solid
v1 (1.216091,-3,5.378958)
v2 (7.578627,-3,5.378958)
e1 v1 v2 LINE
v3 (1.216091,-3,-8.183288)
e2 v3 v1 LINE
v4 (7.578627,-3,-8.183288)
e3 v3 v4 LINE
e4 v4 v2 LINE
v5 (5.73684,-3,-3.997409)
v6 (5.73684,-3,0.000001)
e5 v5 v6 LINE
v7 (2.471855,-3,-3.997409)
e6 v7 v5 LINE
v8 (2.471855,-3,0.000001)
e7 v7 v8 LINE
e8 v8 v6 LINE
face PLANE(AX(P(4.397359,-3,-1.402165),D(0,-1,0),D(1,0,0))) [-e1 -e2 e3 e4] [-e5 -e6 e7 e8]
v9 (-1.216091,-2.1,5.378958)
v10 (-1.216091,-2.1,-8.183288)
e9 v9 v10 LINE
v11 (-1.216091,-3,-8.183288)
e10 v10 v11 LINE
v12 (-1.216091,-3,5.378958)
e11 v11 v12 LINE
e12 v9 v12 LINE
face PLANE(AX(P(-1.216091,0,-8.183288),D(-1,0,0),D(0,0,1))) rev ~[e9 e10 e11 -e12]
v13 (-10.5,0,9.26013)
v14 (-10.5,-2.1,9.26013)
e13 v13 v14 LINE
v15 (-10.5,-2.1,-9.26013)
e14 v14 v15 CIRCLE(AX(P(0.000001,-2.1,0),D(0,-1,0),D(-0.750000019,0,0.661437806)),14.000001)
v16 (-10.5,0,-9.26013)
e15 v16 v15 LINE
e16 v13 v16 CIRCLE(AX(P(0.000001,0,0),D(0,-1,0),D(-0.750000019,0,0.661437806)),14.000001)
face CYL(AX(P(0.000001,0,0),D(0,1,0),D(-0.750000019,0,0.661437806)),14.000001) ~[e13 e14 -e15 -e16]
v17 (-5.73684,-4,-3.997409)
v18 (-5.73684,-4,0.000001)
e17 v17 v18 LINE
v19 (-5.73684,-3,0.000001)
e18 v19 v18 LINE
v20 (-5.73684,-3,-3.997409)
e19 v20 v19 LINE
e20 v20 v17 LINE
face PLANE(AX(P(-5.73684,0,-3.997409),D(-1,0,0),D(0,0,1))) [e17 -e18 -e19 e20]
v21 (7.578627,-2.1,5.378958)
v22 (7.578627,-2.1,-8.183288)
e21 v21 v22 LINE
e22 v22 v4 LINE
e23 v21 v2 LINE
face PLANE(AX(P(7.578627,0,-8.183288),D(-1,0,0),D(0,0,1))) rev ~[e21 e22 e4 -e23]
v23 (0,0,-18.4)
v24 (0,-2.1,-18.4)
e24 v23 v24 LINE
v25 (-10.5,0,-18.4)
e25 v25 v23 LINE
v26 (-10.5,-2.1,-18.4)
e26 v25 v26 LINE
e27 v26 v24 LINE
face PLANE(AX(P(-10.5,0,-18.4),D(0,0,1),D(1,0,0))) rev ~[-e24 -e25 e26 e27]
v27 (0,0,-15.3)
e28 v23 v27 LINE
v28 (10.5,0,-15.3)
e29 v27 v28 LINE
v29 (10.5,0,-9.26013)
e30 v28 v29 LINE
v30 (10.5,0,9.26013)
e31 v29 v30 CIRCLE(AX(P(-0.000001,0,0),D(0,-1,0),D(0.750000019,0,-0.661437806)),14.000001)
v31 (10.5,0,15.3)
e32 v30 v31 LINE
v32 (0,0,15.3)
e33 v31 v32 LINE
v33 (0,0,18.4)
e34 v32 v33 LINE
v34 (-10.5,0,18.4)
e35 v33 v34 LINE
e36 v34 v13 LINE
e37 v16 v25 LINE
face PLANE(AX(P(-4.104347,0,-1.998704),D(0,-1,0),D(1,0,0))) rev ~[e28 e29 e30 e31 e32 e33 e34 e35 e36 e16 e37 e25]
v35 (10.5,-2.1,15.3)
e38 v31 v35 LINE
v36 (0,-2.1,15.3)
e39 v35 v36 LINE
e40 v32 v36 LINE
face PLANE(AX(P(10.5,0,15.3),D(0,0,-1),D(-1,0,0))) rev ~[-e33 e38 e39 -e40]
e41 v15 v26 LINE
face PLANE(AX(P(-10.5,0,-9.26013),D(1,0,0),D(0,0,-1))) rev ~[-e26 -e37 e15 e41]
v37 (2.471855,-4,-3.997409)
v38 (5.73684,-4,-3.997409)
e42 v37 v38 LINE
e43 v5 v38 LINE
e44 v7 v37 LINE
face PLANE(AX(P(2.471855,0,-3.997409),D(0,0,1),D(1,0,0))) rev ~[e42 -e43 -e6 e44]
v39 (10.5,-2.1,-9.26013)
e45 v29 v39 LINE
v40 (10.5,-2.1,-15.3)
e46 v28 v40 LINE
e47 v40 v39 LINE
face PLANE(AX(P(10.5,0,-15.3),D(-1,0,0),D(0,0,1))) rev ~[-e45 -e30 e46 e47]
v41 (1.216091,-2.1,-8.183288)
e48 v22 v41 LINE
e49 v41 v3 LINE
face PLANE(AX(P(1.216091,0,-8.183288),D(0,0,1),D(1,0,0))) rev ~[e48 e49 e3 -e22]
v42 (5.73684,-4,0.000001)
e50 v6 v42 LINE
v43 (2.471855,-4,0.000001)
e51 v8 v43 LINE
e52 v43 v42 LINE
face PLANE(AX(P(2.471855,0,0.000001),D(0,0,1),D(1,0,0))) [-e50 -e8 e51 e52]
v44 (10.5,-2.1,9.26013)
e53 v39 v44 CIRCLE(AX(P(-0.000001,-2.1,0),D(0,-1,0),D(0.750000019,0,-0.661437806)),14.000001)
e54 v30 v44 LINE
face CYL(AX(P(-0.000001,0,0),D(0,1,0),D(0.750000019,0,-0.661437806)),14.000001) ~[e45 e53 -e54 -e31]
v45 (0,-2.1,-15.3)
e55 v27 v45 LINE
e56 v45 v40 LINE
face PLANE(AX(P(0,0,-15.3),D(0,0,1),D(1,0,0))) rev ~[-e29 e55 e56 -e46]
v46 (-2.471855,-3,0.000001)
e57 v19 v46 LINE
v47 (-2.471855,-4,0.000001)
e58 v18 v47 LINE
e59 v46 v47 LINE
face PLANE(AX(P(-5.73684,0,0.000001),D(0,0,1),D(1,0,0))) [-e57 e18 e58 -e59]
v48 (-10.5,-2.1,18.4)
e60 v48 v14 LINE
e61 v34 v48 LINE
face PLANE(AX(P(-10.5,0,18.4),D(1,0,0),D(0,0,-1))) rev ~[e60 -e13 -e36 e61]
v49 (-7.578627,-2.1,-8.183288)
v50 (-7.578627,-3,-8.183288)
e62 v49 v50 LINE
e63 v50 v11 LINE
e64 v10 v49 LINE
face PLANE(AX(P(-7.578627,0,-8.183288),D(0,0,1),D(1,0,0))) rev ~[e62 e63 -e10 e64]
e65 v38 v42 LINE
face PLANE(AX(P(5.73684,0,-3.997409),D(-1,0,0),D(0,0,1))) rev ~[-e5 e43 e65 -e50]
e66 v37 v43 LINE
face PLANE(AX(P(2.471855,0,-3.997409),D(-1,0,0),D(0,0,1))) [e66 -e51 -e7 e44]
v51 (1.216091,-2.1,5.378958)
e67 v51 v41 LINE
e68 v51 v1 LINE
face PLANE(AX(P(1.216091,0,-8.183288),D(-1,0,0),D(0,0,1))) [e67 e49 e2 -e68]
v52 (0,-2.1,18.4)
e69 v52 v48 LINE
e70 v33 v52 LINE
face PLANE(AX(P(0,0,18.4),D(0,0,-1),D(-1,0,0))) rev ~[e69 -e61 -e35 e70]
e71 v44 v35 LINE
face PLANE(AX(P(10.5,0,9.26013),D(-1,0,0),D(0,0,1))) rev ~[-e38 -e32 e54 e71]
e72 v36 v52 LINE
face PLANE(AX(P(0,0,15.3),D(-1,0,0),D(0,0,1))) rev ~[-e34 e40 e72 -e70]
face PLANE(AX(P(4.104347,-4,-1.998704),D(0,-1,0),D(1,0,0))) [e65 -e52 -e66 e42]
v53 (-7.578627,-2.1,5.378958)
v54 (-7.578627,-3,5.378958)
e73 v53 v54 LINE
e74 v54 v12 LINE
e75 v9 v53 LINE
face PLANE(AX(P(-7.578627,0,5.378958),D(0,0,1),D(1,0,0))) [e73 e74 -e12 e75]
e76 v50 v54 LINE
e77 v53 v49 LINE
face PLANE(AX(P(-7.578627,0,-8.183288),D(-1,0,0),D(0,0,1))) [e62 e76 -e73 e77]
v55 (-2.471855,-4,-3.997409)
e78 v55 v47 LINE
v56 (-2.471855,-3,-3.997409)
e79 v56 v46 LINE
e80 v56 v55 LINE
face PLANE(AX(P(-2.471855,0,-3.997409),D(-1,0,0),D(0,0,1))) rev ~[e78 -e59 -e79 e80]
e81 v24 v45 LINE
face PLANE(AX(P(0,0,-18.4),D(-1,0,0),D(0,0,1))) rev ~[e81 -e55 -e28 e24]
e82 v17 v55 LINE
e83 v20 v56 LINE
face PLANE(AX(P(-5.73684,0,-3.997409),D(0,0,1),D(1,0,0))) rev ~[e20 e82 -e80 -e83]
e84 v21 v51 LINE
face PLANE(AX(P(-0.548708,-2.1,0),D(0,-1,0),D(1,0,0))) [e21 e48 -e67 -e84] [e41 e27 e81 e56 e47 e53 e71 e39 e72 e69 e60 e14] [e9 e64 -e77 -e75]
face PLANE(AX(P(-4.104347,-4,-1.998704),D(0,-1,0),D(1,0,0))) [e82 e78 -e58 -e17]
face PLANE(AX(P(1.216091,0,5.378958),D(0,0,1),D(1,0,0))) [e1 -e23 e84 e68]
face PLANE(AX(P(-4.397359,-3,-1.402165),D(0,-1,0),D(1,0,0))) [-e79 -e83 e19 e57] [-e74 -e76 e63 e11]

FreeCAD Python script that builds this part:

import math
import FreeCAD as App
import Part
import Sketcher
from FreeCAD import Vector

doc = App.newDocument("Part")
body = doc.addObject("PartDesign::Body", "Body")

# Sketch on XZ plane
sketch1 = body.newObject("Sketcher::SketchObject", "Sketch")
sketch1.AttachmentSupport = (doc.getObject("XZ_Plane"), [""])
sketch1.MapMode = "FlatFace"
sketch1.addGeometry(Part.LineSegment(Vector(-10.5, 18.4, 0), Vector(-10.5, 9.3, 0)), False)
sketch1.addGeometry(Part.ArcOfCircle(Part.Circle(Vector(0, 0, 0), Vector(0, 0, 1), 14), math.radians(139), math.radians(221)), False)
sketch1.addGeometry(Part.LineSegment(Vector(-10.5, -9.3, 0), Vector(-10.5, -18.4, 0)), False)
sketch1.addGeometry(Part.LineSegment(Vector(-10.5, -18.4, 0), Vector(0, -18.4, 0)), False)
sketch1.addGeometry(Part.LineSegment(Vector(0, -18.4, 0), Vector(0, -15.3, 0)), False)
sketch1.addGeometry(Part.LineSegment(Vector(0, -15.3, 0), Vector(10.5, -15.3, 0)), False)
sketch1.addGeometry(Part.LineSegment(Vector(10.5, -15.3, 0), Vector(10.5, -9.3, 0)), False)
sketch1.addGeometry(Part.ArcOfCircle(Part.Circle(Vector(0, 0, 0), Vector(0, 0, 1), 14), math.radians(-41), math.radians(41)), False)
sketch1.addGeometry(Part.LineSegment(Vector(10.5, 9.3, 0), Vector(10.5, 15.3, 0)), False)
sketch1.addGeometry(Part.LineSegment(Vector(10.5, 15.3, 0), Vector(0, 15.3, 0)), False)
sketch1.addGeometry(Part.LineSegment(Vector(0, 15.3, 0), Vector(0, 18.4, 0)), False)
sketch1.addGeometry(Part.LineSegment(Vector(0, 18.4, 0), Vector(-10.5, 18.4, 0)), False)
sketch1.addConstraint(Sketcher.Constraint("Coincident", 0, 2, 1, 1))
sketch1.addConstraint(Sketcher.Constraint("Coincident", 1, 2, 2, 1))
sketch1.addConstraint(Sketcher.Constraint("Coincident", 2, 2, 3, 1))
sketch1.addConstraint(Sketcher.Constraint("Coincident", 3, 2, 4, 1))
sketch1.addConstraint(Sketcher.Constraint("Coincident", 4, 2, 5, 1))
sketch1.addConstraint(Sketcher.Constraint("Coincident", 5, 2, 6, 1))
sketch1.addConstraint(Sketcher.Constraint("Coincident", 6, 2, 7, 1))
sketch1.addConstraint(Sketcher.Constraint("Coincident", 7, 2, 8, 1))
sketch1.addConstraint(Sketcher.Constraint("Coincident", 8, 2, 9, 1))
sketch1.addConstraint(Sketcher.Constraint("Coincident", 9, 2, 10, 1))
sketch1.addConstraint(Sketcher.Constraint("Coincident", 10, 2, 11, 1))
sketch1.addConstraint(Sketcher.Constraint("Coincident", 11, 2, 0, 1))
sketch1.addConstraint(Sketcher.Constraint("Vertical", 0))
sketch1.addConstraint(Sketcher.Constraint("Vertical", 2))
sketch1.addConstraint(Sketcher.Constraint("Horizontal", 3))
sketch1.addConstraint(Sketcher.Constraint("Vertical", 4))
sketch1.addConstraint(Sketcher.Constraint("Horizontal", 5))
sketch1.addConstraint(Sketcher.Constraint("Vertical", 6))
sketch1.addConstraint(Sketcher.Constraint("Vertical", 8))
sketch1.addConstraint(Sketcher.Constraint("Horizontal", 9))
sketch1.addConstraint(Sketcher.Constraint("Vertical", 10))
sketch1.addConstraint(Sketcher.Constraint("Horizontal", 11))
sketch1.addConstraint(Sketcher.Constraint("Coincident", 1, 3, -1, 1))
sketch1.addConstraint(Sketcher.Constraint("Coincident", 7, 3, -1, 1))
sketch1.addConstraint(Sketcher.Constraint("Equal", 1, 7))
sketch1.addConstraint(Sketcher.Constraint("Symmetric", 4, 2, 9, 2, -1, 1))
sketch1.addConstraint(Sketcher.Constraint("Symmetric", 3, 2, 10, 2, -1))
sketch1.addConstraint(Sketcher.Constraint("Horizontal", 1, 2, 6, 2))
sketch1.addConstraint(Sketcher.Constraint("Horizontal", 0, 2, 7, 2))
sketch1.addConstraint(Sketcher.Constraint("Vertical", 0, 2, 1, 2))
sketch1.addConstraint(Sketcher.Constraint("Radius", 1, 14.000001))
sketch1.addConstraint(Sketcher.Constraint("DistanceX", 3, 1, 3, 2, 10.5))
sketch1.addConstraint(Sketcher.Constraint("DistanceY", 4, 1, 4, 2, 3.1))
sketch1.addConstraint(Sketcher.Constraint("DistanceY", 2, 2, -1, 1, 18.4))
pad1 = body.newObject("PartDesign::Pad", "Pad")
pad1.Profile = sketch1
pad1.Length = 2.1

# Sketch on XZ plane
sketch2 = body.newObject("Sketcher::SketchObject", "Sketch001")
sketch2.AttachmentSupport = (doc.getObject("XZ_Plane"), [""])
sketch2.MapMode = "FlatFace"
sketch2.addGeometry(Part.LineSegment(Vector(-7.6, 5.4, 0), Vector(-7.6, -8.2, 0)), False)
sketch2.addGeometry(Part.LineSegment(Vector(-7.6, -8.2, 0), Vector(-1.2, -8.2, 0)), False)
sketch2.addGeometry(Part.LineSegment(Vector(-1.2, -8.2, 0), Vector(-1.2, 5.4, 0)), False)
sketch2.addGeometry(Part.LineSegment(Vector(-1.2, 5.4, 0), Vector(-7.6, 5.4, 0)), False)
sketch2.addGeometry(Part.LineSegment(Vector(-2.5, -4, 0), Vector(-5.7, -4, 0)), False)
sketch2.addGeometry(Part.LineSegment(Vector(-5.7, -4, 0), Vector(-5.7, 0, 0)), False)
sketch2.addGeometry(Part.LineSegment(Vector(-5.7, 0, 0), Vector(-2.5, 0, 0)), False)
sketch2.addGeometry(Part.LineSegment(Vector(-2.5, 0, 0), Vector(-2.5, -4, 0)), False)
sketch2.addGeometry(Part.LineSegment(Vector(1.2, 5.4, 0), Vector(1.2, -8.2, 0)), False)
sketch2.addGeometry(Part.LineSegment(Vector(1.2, -8.2, 0), Vector(7.6, -8.2, 0)), False)
sketch2.addGeometry(Part.LineSegment(Vector(7.6, -8.2, 0), Vector(7.6, 5.4, 0)), False)
sketch2.addGeometry(Part.LineSegment(Vector(7.6, 5.4, 0), Vector(1.2, 5.4, 0)), False)
sketch2.addGeometry(Part.LineSegment(Vector(5.7, -4, 0), Vector(2.5, -4, 0)), False)
sketch2.addGeometry(Part.LineSegment(Vector(2.5, -4, 0), Vector(2.5, 0, 0)), False)
sketch2.addGeometry(Part.LineSegment(Vector(2.5, 0, 0), Vector(5.7, 0, 0)), False)
sketch2.addGeometry(Part.LineSegment(Vector(5.7, 0, 0), Vector(5.7, -4, 0)), False)
sketch2.addConstraint(Sketcher.Constraint("Coincident", 0, 2, 1, 1))
sketch2.addConstraint(Sketcher.Constraint("Coincident", 1, 2, 2, 1))
sketch2.addConstraint(Sketcher.Constraint("Coincident", 2, 2, 3, 1))
sketch2.addConstraint(Sketcher.Constraint("Coincident", 3, 2, 0, 1))
sketch2.addConstraint(Sketcher.Constraint("Coincident", 4, 2, 5, 1))
sketch2.addConstraint(Sketcher.Constraint("Coincident", 5, 2, 6, 1))
sketch2.addConstraint(Sketcher.Constraint("Coincident", 6, 2, 7, 1))
sketch2.addConstraint(Sketcher.Constraint("Coincident", 7, 2, 4, 1))
sketch2.addConstraint(Sketcher.Constraint("Coincident", 8, 2, 9, 1))
sketch2.addConstraint(Sketcher.Constraint("Coincident", 9, 2, 10, 1))
sketch2.addConstraint(Sketcher.Constraint("Coincident", 10, 2, 11, 1))
sketch2.addConstraint(Sketcher.Constraint("Coincident", 11, 2, 8, 1))
sketch2.addConstraint(Sketcher.Constraint("Coincident", 12, 2, 13, 1))
sketch2.addConstraint(Sketcher.Constraint("Coincident", 13, 2, 14, 1))
sketch2.addConstraint(Sketcher.Constraint("Coincident", 14, 2, 15, 1))
sketch2.addConstraint(Sketcher.Constraint("Coincident", 15, 2, 12, 1))
sketch2.addConstraint(Sketcher.Constraint("Vertical", 0))
sketch2.addConstraint(Sketcher.Constraint("Horizontal", 1))
sketch2.addConstraint(Sketcher.Constraint("Vertical", 2))
sketch2.addConstraint(Sketcher.Constraint("Horizontal", 3))
sketch2.addConstraint(Sketcher.Constraint("Horizontal", 4))
sketch2.addConstraint(Sketcher.Constraint("Vertical", 5))
sketch2.addConstraint(Sketcher.Constraint("Horizontal", 6))
sketch2.addConstraint(Sketcher.Constraint("Vertical", 7))
sketch2.addConstraint(Sketcher.Constraint("Vertical", 8))
sketch2.addConstraint(Sketcher.Constraint("Horizontal", 9))
sketch2.addConstraint(Sketcher.Constraint("Vertical", 10))
sketch2.addConstraint(Sketcher.Constraint("Horizontal", 11))
sketch2.addConstraint(Sketcher.Constraint("Horizontal", 12))
sketch2.addConstraint(Sketcher.Constraint("Vertical", 13))
sketch2.addConstraint(Sketcher.Constraint("Horizontal", 14))
sketch2.addConstraint(Sketcher.Constraint("Vertical", 15))
sketch2.addConstraint(Sketcher.Constraint("Symmetric", 6, 2, 13, 2, -1, 1))
sketch2.addConstraint(Sketcher.Constraint("Symmetric", 1, 2, 8, 2, -2))
sketch2.addConstraint(Sketcher.Constraint("Symmetric", 3, 2, 10, 2, -2))
sketch2.addConstraint(Sketcher.Constraint("Symmetric", 5, 2, 14, 2, -2))
sketch2.addConstraint(Sketcher.Constraint("Horizontal", 7, 2, 12, 2))
sketch2.addConstraint(Sketcher.Constraint("DistanceY", 5, 1, 5, 2, 3.997409))
sketch2.addConstraint(Sketcher.Constraint("DistanceX", 1, 1, 1, 2, 6.362536))
sketch2.addConstraint(Sketcher.Constraint("DistanceX", 4, 2, 4, 1, 3.264985))
sketch2.addConstraint(Sketcher.Constraint("DistanceY", 0, 2, 0, 1, 13.562245))
sketch2.addConstraint(Sketcher.Constraint("DistanceX", 1, 2, -1, 1, 1.216091))
sketch2.addConstraint(Sketcher.Constraint("DistanceX", 4, 2, -1, 1, 5.73684))
sketch2.addConstraint(Sketcher.Constraint("DistanceY", 0, 2, 4, 2, 4.185879))
pad2 = body.newObject("PartDesign::Pad", "Pad001")
pad2.Profile = sketch2
pad2.Length = 3

# Sketch on XZ plane
sketch3 = body.newObject("Sketcher::SketchObject", "Sketch002")
sketch3.AttachmentSupport = (doc.getObject("XZ_Plane"), [""])
sketch3.MapMode = "FlatFace"
sketch3.addGeometry(Part.LineSegment(Vector(-5.7, 0, 0), Vector(-5.7, -4, 0)), False)
sketch3.addGeometry(Part.LineSegment(Vector(-5.7, -4, 0), Vector(-2.5, -4, 0)), False)
sketch3.addGeometry(Part.LineSegment(Vector(-2.5, -4, 0), Vector(-2.5, 0, 0)), False)
sketch3.addGeometry(Part.LineSegment(Vector(-2.5, 0, 0), Vector(-5.7, 0, 0)), False)
sketch3.addGeometry(Part.LineSegment(Vector(2.5, 0, 0), Vector(2.5, -4, 0)), False)
sketch3.addGeometry(Part.LineSegment(Vector(2.5, -4, 0), Vector(5.7, -4, 0)), False)
sketch3.addGeometry(Part.LineSegment(Vector(5.7, -4, 0), Vector(5.7, 0, 0)), False)
sketch3.addGeometry(Part.LineSegment(Vector(5.7, 0, 0), Vector(2.5, 0, 0)), False)
sketch3.addConstraint(Sketcher.Constraint("Coincident", 0, 2, 1, 1))
sketch3.addConstraint(Sketcher.Constraint("Coincident", 1, 2, 2, 1))
sketch3.addConstraint(Sketcher.Constraint("Coincident", 2, 2, 3, 1))
sketch3.addConstraint(Sketcher.Constraint("Coincident", 3, 2, 0, 1))
sketch3.addConstraint(Sketcher.Constraint("Coincident", 4, 2, 5, 1))
sketch3.addConstraint(Sketcher.Constraint("Coincident", 5, 2, 6, 1))
sketch3.addConstraint(Sketcher.Constraint("Coincident", 6, 2, 7, 1))
sketch3.addConstraint(Sketcher.Constraint("Coincident", 7, 2, 4, 1))
sketch3.addConstraint(Sketcher.Constraint("Vertical", 0))
sketch3.addConstraint(Sketcher.Constraint("Horizontal", 1))
sketch3.addConstraint(Sketcher.Constraint("Vertical", 2))
sketch3.addConstraint(Sketcher.Constraint("Horizontal", 3))
sketch3.addConstraint(Sketcher.Constraint("Vertical", 4))
sketch3.addConstraint(Sketcher.Constraint("Horizontal", 5))
sketch3.addConstraint(Sketcher.Constraint("Vertical", 6))
sketch3.addConstraint(Sketcher.Constraint("Horizontal", 7))
sketch3.addConstraint(Sketcher.Constraint("Symmetric", 3, 2, 6, 2, -1, 1))
sketch3.addConstraint(Sketcher.Constraint("Symmetric", 1, 2, 4, 2, -2))
sketch3.addConstraint(Sketcher.Constraint("PointOnObject", 2, 2, -1))
sketch3.addConstraint(Sketcher.Constraint("DistanceY", 0, 2, 0, 1, 3.997409))
sketch3.addConstraint(Sketcher.Constraint("DistanceX", 1, 1, 1, 2, 3.264985))
sketch3.addConstraint(Sketcher.Constraint("DistanceX", 0, 2, -1, 1, 5.73684))
pad3 = body.newObject("PartDesign::Pad", "Pad002")
pad3.Profile = sketch3
pad3.Length = 4

doc.recompute()
